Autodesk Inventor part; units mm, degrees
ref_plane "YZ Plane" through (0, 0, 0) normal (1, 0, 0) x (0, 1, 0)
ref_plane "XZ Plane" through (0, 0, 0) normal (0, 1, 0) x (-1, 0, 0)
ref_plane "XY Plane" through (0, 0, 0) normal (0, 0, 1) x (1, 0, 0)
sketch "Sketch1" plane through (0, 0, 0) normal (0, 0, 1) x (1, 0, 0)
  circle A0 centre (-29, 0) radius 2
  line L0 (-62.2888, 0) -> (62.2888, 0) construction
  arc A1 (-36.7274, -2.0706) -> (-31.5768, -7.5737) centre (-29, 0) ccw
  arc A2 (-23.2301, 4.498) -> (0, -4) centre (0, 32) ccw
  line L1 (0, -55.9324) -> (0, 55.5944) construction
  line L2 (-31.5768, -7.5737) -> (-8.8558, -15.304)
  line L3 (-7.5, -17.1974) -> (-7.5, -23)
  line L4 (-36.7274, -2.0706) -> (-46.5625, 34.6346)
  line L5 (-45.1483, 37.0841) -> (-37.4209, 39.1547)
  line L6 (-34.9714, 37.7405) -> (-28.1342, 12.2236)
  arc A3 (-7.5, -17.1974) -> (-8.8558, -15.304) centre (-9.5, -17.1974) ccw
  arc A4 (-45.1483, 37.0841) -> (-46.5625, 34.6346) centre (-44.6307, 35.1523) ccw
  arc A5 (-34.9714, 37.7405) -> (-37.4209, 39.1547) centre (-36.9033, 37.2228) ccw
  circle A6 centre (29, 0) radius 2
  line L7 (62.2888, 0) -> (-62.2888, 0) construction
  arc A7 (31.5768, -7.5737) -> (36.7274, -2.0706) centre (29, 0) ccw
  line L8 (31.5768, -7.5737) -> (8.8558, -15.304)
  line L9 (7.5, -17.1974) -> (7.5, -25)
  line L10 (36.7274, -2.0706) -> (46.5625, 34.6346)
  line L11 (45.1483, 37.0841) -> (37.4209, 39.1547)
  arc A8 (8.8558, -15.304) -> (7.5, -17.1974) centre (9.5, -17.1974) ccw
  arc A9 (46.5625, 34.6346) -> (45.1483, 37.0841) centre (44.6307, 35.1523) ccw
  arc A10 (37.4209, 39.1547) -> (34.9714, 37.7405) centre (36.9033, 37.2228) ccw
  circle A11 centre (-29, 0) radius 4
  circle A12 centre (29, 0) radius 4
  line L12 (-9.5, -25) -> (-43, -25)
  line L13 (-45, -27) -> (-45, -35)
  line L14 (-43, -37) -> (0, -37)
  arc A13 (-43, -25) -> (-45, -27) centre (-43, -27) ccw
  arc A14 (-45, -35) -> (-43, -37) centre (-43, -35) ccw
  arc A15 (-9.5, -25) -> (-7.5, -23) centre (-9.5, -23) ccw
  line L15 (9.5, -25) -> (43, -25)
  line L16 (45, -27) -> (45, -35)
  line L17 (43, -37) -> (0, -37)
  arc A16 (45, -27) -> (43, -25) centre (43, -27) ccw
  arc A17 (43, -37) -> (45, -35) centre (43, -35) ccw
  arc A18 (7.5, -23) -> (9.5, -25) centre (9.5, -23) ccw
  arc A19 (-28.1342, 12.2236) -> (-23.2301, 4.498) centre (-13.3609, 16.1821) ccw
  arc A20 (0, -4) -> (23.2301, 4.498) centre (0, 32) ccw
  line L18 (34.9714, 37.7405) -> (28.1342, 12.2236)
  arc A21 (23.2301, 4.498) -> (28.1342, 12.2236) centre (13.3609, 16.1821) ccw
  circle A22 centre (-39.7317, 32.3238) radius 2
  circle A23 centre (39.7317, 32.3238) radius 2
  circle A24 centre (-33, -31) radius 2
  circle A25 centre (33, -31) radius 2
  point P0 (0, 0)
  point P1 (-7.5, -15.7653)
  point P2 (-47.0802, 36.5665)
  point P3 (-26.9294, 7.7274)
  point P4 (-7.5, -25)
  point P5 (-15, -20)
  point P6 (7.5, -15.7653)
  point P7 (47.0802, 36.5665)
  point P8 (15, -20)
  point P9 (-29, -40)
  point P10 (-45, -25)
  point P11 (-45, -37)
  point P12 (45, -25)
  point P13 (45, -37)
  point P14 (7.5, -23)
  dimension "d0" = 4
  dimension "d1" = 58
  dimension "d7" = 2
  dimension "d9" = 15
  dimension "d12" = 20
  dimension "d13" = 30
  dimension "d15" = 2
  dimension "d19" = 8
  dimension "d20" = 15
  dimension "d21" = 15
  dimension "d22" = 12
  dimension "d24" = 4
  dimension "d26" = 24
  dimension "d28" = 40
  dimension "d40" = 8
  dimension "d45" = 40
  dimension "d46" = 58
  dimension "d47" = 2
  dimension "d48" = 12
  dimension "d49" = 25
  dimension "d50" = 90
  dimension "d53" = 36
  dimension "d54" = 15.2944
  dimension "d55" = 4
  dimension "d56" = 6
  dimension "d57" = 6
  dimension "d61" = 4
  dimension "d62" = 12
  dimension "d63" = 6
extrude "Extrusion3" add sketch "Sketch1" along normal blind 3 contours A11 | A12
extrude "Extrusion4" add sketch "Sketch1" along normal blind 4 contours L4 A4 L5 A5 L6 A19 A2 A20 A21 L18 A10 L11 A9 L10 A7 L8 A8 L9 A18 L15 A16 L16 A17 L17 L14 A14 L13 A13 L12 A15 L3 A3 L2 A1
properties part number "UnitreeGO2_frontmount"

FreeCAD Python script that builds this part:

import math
import FreeCAD as App
import Part
import Sketcher
Q = App.Units.Quantity

doc = App.newDocument("Part")
body = doc.addObject("PartDesign::Body", "Body")
body.AllowCompound = True

sketch1 = doc.addObject("Sketcher::SketchObject", "Sketch")
body.addObject(sketch1)
sketch1.AttachmentSupport = (doc.XY_Plane, [""])
sketch1.MapMode = "FlatFace"
sketch1.addGeometry(Part.Circle(App.Vector(-29, 0, 0), App.Vector(0, 0, 1), 4), False)
sketch1.addGeometry(Part.Circle(App.Vector(-29, 0, 0), App.Vector(0, 0, 1), 2), False)
sketch1.addGeometry(Part.Circle(App.Vector(29, 0, 0), App.Vector(0, 0, 1), 4), False)
sketch1.addGeometry(Part.Circle(App.Vector(29, 0, 0), App.Vector(0, 0, 1), 2), False)
sketch1.addConstraint(Sketcher.Constraint("Coincident", 1, 3, 0, 3))
sketch1.addConstraint(Sketcher.Constraint("Coincident", 3, 3, 2, 3))
sketch1.addConstraint(Sketcher.Constraint("Equal", 0, 2))
sketch1.addConstraint(Sketcher.Constraint("Equal", 1, 3))
sketch1.addConstraint(Sketcher.Constraint("Symmetric", 0, 3, 2, 3, -1, 1))
sketch1.addConstraint(Sketcher.Constraint("PointOnObject", 0, 3, -1))
sketch1.addConstraint(Sketcher.Constraint("Diameter", 0, 8.0))
sketch1.addConstraint(Sketcher.Constraint("Diameter", 1, 4.0))
sketch1.addConstraint(Sketcher.Constraint("DistanceX", 0, 3, 2, 3, 58.0))
pad1 = doc.addObject("PartDesign::Pad", "Pad")
body.addObject(pad1)
pad1.Profile = sketch1
pad1.Length = 3

sketch2 = doc.addObject("Sketcher::SketchObject", "Sketch001")
body.addObject(sketch2)
sketch2.AttachmentSupport = (doc.XY_Plane, [""])
sketch2.MapMode = "FlatFace"
sketch2.addGeometry(Part.LineSegment(App.Vector(-46.6, 34.6, 0), App.Vector(-36.7, -2.1, 0)), False)
sketch2.addGeometry(Part.ArcOfCircle(Part.Circle(App.Vector(-29, 0, 0), App.Vector(0, 0, 1), 8), math.radians(-165), math.radians(-109)), False)
sketch2.addGeometry(Part.LineSegment(App.Vector(-31.6, -7.6, 0), App.Vector(-8.9, -15.3, 0)), False)
sketch2.addGeometry(Part.ArcOfCircle(Part.Circle(App.Vector(-9.5, -17.2, 0), App.Vector(0, 0, 1), 2), math.radians(0), math.radians(71)), False)
sketch2.addGeometry(Part.LineSegment(App.Vector(-7.5, -17.2, 0), App.Vector(-7.5, -23, 0)), False)
sketch2.addGeometry(Part.ArcOfCircle(Part.Circle(App.Vector(-9.5, -23, 0), App.Vector(0, 0, 1), 2), math.radians(-90), math.radians(0)), False)
sketch2.addGeometry(Part.LineSegment(App.Vector(-9.5, -25, 0), App.Vector(-43, -25, 0)), False)
sketch2.addGeometry(Part.ArcOfCircle(Part.Circle(App.Vector(-43, -27, 0), App.Vector(0, 0, 1), 2), math.radians(90), math.radians(180)), False)
sketch2.addGeometry(Part.LineSegment(App.Vector(-45, -27, 0), App.Vector(-45, -35, 0)), False)
sketch2.addGeometry(Part.ArcOfCircle(Part.Circle(App.Vector(-43, -35, 0), App.Vector(0, 0, 1), 2), math.radians(180), math.radians(270)), False)
sketch2.addGeometry(Part.LineSegment(App.Vector(-43, -37, 0), App.Vector(43, -37, 0)), False)
sketch2.addGeometry(Part.ArcOfCircle(Part.Circle(App.Vector(43, -35, 0), App.Vector(0, 0, 1), 2), math.radians(-90), math.radians(0)), False)
sketch2.addGeometry(Part.LineSegment(App.Vector(45, -35, 0), App.Vector(45, -27, 0)), False)
sketch2.addGeometry(Part.ArcOfCircle(Part.Circle(App.Vector(43, -27, 0), App.Vector(0, 0, 1), 2), math.radians(0), math.radians(90)), False)
sketch2.addGeometry(Part.LineSegment(App.Vector(43, -25, 0), App.Vector(9.5, -25, 0)), False)
sketch2.addGeometry(Part.ArcOfCircle(Part.Circle(App.Vector(9.5, -23, 0), App.Vector(0, 0, 1), 2), math.radians(180), math.radians(270)), False)
sketch2.addGeometry(Part.LineSegment(App.Vector(7.5, -23, 0), App.Vector(7.5, -17.2, 0)), False)
sketch2.addGeometry(Part.ArcOfCircle(Part.Circle(App.Vector(9.5, -17.2, 0), App.Vector(0, 0, 1), 2), math.radians(109), math.radians(180)), False)
sketch2.addGeometry(Part.LineSegment(App.Vector(8.9, -15.3, 0), App.Vector(31.6, -7.6, 0)), False)
sketch2.addGeometry(Part.ArcOfCircle(Part.Circle(App.Vector(29, 0, 0), App.Vector(0, 0, 1), 8), math.radians(-71), math.radians(-15)), False)
sketch2.addGeometry(Part.LineSegment(App.Vector(36.7, -2.1, 0), App.Vector(46.6, 34.6, 0)), False)
sketch2.addGeometry(Part.ArcOfCircle(Part.Circle(App.Vector(44.6, 35.2, 0), App.Vector(0, 0, 1), 2), math.radians(-15), math.radians(75)), False)
sketch2.addGeometry(Part.LineSegment(App.Vector(45.1, 37.1, 0), App.Vector(37.4, 39.2, 0)), False)
sketch2.addGeometry(Part.ArcOfCircle(Part.Circle(App.Vector(36.9, 37.2, 0), App.Vector(0, 0, 1), 2), math.radians(75), math.radians(165)), False)
sketch2.addGeometry(Part.LineSegment(App.Vector(35, 37.7, 0), App.Vector(28.1, 12.2, 0)), False)
sketch2.addGeometry(Part.ArcOfCircle(Part.Circle(App.Vector(13.4, 16.2, 0), App.Vector(0, 0, 1), 15.3), math.radians(-50), math.radians(-15)), False)
sketch2.addGeometry(Part.ArcOfCircle(Part.Circle(App.Vector(0, 32, 0), App.Vector(0, 0, 1), 36), math.radians(-90), math.radians(-50)), False)
sketch2.addGeometry(Part.ArcOfCircle(Part.Circle(App.Vector(0, 32, 0), App.Vector(0, 0, 1), 36), math.radians(-130), math.radians(-90)), False)
sketch2.addGeometry(Part.ArcOfCircle(Part.Circle(App.Vector(-13.4, 16.2, 0), App.Vector(0, 0, 1), 15.3), math.radians(-165), math.radians(-130)), False)
sketch2.addGeometry(Part.LineSegment(App.Vector(-28.1, 12.2, 0), App.Vector(-35, 37.7, 0)), False)
sketch2.addGeometry(Part.ArcOfCircle(Part.Circle(App.Vector(-36.9, 37.2, 0), App.Vector(0, 0, 1), 2), math.radians(15), math.radians(105)), False)
sketch2.addGeometry(Part.LineSegment(App.Vector(-37.4, 39.2, 0), App.Vector(-45.1, 37.1, 0)), False)
sketch2.addGeometry(Part.ArcOfCircle(Part.Circle(App.Vector(-44.6, 35.2, 0), App.Vector(0, 0, 1), 2), math.radians(105), math.radians(195)), False)
sketch2.addGeometry(Part.Circle(App.Vector(-33, -31, 0), App.Vector(0, 0, 1), 2), False)
sketch2.addGeometry(Part.Circle(App.Vector(-29, 0, 0), App.Vector(0, 0, 1), 4), False)
sketch2.addGeometry(Part.Circle(App.Vector(33, -31, 0), App.Vector(0, 0, 1), 2), False)
sketch2.addGeometry(Part.Circle(App.Vector(29, 0, 0), App.Vector(0, 0, 1), 4), False)
sketch2.addGeometry(Part.Circle(App.Vector(-39.7, 32.3, 0), App.Vector(0, 0, 1), 2), False)
sketch2.addGeometry(Part.Circle(App.Vector(39.7, 32.3, 0), App.Vector(0, 0, 1), 2), False)
sketch2.addConstraint(Sketcher.Constraint("Tangent", 0, 2, 1, 1))
sketch2.addConstraint(Sketcher.Constraint("Tangent", 1, 2, 2, 1))
sketch2.addConstraint(Sketcher.Constraint("Tangent", 2, 2, 3, 2))
sketch2.addConstraint(Sketcher.Constraint("Tangent", 3, 1, 4, 1))
sketch2.addConstraint(Sketcher.Constraint("Tangent", 4, 2, 5, 2))
sketch2.addConstraint(Sketcher.Constraint("Tangent", 5, 1, 6, 1))
sketch2.addConstraint(Sketcher.Constraint("Tangent", 6, 2, 7, 1))
sketch2.addConstraint(Sketcher.Constraint("Tangent", 7, 2, 8, 1))
sketch2.addConstraint(Sketcher.Constraint("Tangent", 8, 2, 9, 1))
sketch2.addConstraint(Sketcher.Constraint("Tangent", 9, 2, 10, 1))
sketch2.addConstraint(Sketcher.Constraint("Tangent", 10, 2, 11, 1))
sketch2.addConstraint(Sketcher.Constraint("Tangent", 11, 2, 12, 1))
sketch2.addConstraint(Sketcher.Constraint("Tangent", 12, 2, 13, 1))
sketch2.addConstraint(Sketcher.Constraint("Tangent", 13, 2, 14, 1))
sketch2.addConstraint(Sketcher.Constraint("Tangent", 14, 2, 15, 2))
sketch2.addConstraint(Sketcher.Constraint("Tangent", 15, 1, 16, 1))
sketch2.addConstraint(Sketcher.Constraint("Tangent", 16, 2, 17, 2))
sketch2.addConstraint(Sketcher.Constraint("Tangent", 17, 1, 18, 1))
sketch2.addConstraint(Sketcher.Constraint("Tangent", 18, 2, 19, 1))
sketch2.addConstraint(Sketcher.Constraint("Tangent", 19, 2, 20, 1))
sketch2.addConstraint(Sketcher.Constraint("Tangent", 20, 2, 21, 1))
sketch2.addConstraint(Sketcher.Constraint("Tangent", 21, 2, 22, 1))
sketch2.addConstraint(Sketcher.Constraint("Tangent", 22, 2, 23, 1))
sketch2.addConstraint(Sketcher.Constraint("Tangent", 23, 2, 24, 1))
sketch2.addConstraint(Sketcher.Constraint("Tangent", 24, 2, 25, 2))
sketch2.addConstraint(Sketcher.Constraint("Tangent", 25, 1, 26, 2))
sketch2.addConstraint(Sketcher.Constraint("Tangent", 26, 1, 27, 2))
sketch2.addConstraint(Sketcher.Constraint("Tangent", 27, 1, 28, 2))
sketch2.addConstraint(Sketcher.Constraint("Tangent", 28, 1, 29, 1))
sketch2.addConstraint(Sketcher.Constraint("Tangent", 29, 2, 30, 1))
sketch2.addConstraint(Sketcher.Constraint("Tangent", 30, 2, 31, 1))
sketch2.addConstraint(Sketcher.Constraint("Tangent", 31, 2, 32, 1))
sketch2.addConstraint(Sketcher.Constraint("Tangent", 32, 2, 0, 1))
sketch2.addConstraint(Sketcher.Constraint("Vertical", 4))
sketch2.addConstraint(Sketcher.Constraint("Horizontal", 6))
sketch2.addConstraint(Sketcher.Constraint("Vertical", 8))
sketch2.addConstraint(Sketcher.Constraint("Horizontal", 10))
sketch2.addConstraint(Sketcher.Constraint("Vertical", 12))
sketch2.addConstraint(Sketcher.Constraint("Horizontal", 14))
sketch2.addConstraint(Sketcher.Constraint("Vertical", 16))
sketch2.addConstraint(Sketcher.Constraint("Coincident", 34, 3, 1, 3))
sketch2.addConstraint(Sketcher.Constraint("Coincident", 36, 3, 19, 3))
sketch2.addConstraint(Sketcher.Constraint("Equal", 3, 5))
sketch2.addConstraint(Sketcher.Constraint("Equal", 5, 7))
sketch2.addConstraint(Sketcher.Constraint("Equal", 7, 9))
sketch2.addConstraint(Sketcher.Constraint("Equal", 9, 11))
sketch2.addConstraint(Sketcher.Constraint("Equal", 11, 13))
sketch2.addConstraint(Sketcher.Constraint("Equal", 13, 15))
sketch2.addConstraint(Sketcher.Constraint("Equal", 15, 17))
sketch2.addConstraint(Sketcher.Constraint("Equal", 1, 19))
sketch2.addConstraint(Sketcher.Constraint("Equal", 17, 21))
sketch2.addConstraint(Sketcher.Constraint("Equal", 21, 23))
sketch2.addConstraint(Sketcher.Constraint("Equal", 26, 27))
sketch2.addConstraint(Sketcher.Constraint("Equal", 25, 28))
sketch2.addConstraint(Sketcher.Constraint("Equal", 23, 30))
sketch2.addConstraint(Sketcher.Constraint("Equal", 30, 32))
sketch2.addConstraint(Sketcher.Constraint("Equal", 32, 33))
sketch2.addConstraint(Sketcher.Constraint("Equal", 33, 35))
sketch2.addConstraint(Sketcher.Constraint("Equal", 34, 36))
sketch2.addConstraint(Sketcher.Constraint("Equal", 35, 37))
sketch2.addConstraint(Sketcher.Constraint("Equal", 37, 38))
sketch2.addConstraint(Sketcher.Constraint("Symmetric", 1, 3, 19, 3, -1, 1))
sketch2.addConstraint(Sketcher.Constraint("Symmetric", 7, 3, 13, 3, -2))
sketch2.addConstraint(Sketcher.Constraint("Symmetric", 3, 3, 17, 3, -2))
sketch2.addConstraint(Sketcher.Constraint("Symmetric", 25, 3, 28, 3, -2))
sketch2.addConstraint(Sketcher.Constraint("Symmetric", 23, 3, 30, 3, -2))
sketch2.addConstraint(Sketcher.Constraint("Symmetric", 21, 3, 32, 3, -2))
sketch2.addConstraint(Sketcher.Constraint("Symmetric", 33, 3, 35, 3, -2))
sketch2.addConstraint(Sketcher.Constraint("Symmetric", 37, 3, 38, 3, -2))
sketch2.addConstraint(Sketcher.Constraint("PointOnObject", 1, 3, -1))
sketch2.addConstraint(Sketcher.Constraint("PointOnObject", 26, 1, -2))
sketch2.addConstraint(Sketcher.Constraint("Perpendicular", 20, 22))
sketch2.addConstraint(Sketcher.Constraint("Perpendicular", 22, 24))
sketch2.addConstraint(Sketcher.Constraint("Diameter", 33, 4.0))
sketch2.addConstraint(Sketcher.Constraint("Diameter", 34, 8.0))
sketch2.addConstraint(Sketcher.Constraint("Radius", 1, 8.0))
sketch2.addConstraint(Sketcher.Constraint("Radius", 26, 36.0))
sketch2.addConstraint(Sketcher.Constraint("DistanceY", 8, 2, 8, 1, 8.0))
sketch2.addConstraint(Sketcher.Constraint("Distance", 2, 24.0))
sketch2.addConstraint(Sketcher.Constraint("Distance", 22, 8.0))
sketch2.addConstraint(Sketcher.Constraint("DistanceY", 5, 1, -1, 1, 25.0))
sketch2.addConstraint(Sketcher.Constraint("DistanceY", 26, 1, -1, 1, 4.0))
sketch2.addConstraint(Sketcher.Constraint("DistanceY", 33, 3, 7, 3, 4.0))
sketch2.addConstraint(Sketcher.Constraint("DistanceX", 33, 3, 1, 3, 4.0))
sketch2.addConstraint(Sketcher.Constraint("DistanceX", 7, 2, 33, 3, 12.0))
sketch2.addConstraint(Sketcher.Constraint("DistanceX", 4, 2, 15, 1, 15.0))
sketch2.addConstraint(Sketcher.Constraint("Radius", 25, 15.2944))
sketch2.addConstraint(Sketcher.Constraint("DistanceX", 10, 1, 10, 2, 86.0))
sketch2.addConstraint(Sketcher.Constraint("Angle", 0, Q("-75 deg")))
sketch2.addConstraint(Sketcher.Constraint("Distance", 0, 38.0))
sketch2.addConstraint(Sketcher.Constraint("DistanceY", 37, 3, 30, 3, 4.899))
sketch2.addConstraint(Sketcher.Constraint("DistanceX", 32, 3, 37, 3, 4.899))
pad2 = doc.addObject("PartDesign::Pad", "Pad001")
body.addObject(pad2)
pad2.Profile = sketch2
pad2.Length = 4

doc.recompute()
